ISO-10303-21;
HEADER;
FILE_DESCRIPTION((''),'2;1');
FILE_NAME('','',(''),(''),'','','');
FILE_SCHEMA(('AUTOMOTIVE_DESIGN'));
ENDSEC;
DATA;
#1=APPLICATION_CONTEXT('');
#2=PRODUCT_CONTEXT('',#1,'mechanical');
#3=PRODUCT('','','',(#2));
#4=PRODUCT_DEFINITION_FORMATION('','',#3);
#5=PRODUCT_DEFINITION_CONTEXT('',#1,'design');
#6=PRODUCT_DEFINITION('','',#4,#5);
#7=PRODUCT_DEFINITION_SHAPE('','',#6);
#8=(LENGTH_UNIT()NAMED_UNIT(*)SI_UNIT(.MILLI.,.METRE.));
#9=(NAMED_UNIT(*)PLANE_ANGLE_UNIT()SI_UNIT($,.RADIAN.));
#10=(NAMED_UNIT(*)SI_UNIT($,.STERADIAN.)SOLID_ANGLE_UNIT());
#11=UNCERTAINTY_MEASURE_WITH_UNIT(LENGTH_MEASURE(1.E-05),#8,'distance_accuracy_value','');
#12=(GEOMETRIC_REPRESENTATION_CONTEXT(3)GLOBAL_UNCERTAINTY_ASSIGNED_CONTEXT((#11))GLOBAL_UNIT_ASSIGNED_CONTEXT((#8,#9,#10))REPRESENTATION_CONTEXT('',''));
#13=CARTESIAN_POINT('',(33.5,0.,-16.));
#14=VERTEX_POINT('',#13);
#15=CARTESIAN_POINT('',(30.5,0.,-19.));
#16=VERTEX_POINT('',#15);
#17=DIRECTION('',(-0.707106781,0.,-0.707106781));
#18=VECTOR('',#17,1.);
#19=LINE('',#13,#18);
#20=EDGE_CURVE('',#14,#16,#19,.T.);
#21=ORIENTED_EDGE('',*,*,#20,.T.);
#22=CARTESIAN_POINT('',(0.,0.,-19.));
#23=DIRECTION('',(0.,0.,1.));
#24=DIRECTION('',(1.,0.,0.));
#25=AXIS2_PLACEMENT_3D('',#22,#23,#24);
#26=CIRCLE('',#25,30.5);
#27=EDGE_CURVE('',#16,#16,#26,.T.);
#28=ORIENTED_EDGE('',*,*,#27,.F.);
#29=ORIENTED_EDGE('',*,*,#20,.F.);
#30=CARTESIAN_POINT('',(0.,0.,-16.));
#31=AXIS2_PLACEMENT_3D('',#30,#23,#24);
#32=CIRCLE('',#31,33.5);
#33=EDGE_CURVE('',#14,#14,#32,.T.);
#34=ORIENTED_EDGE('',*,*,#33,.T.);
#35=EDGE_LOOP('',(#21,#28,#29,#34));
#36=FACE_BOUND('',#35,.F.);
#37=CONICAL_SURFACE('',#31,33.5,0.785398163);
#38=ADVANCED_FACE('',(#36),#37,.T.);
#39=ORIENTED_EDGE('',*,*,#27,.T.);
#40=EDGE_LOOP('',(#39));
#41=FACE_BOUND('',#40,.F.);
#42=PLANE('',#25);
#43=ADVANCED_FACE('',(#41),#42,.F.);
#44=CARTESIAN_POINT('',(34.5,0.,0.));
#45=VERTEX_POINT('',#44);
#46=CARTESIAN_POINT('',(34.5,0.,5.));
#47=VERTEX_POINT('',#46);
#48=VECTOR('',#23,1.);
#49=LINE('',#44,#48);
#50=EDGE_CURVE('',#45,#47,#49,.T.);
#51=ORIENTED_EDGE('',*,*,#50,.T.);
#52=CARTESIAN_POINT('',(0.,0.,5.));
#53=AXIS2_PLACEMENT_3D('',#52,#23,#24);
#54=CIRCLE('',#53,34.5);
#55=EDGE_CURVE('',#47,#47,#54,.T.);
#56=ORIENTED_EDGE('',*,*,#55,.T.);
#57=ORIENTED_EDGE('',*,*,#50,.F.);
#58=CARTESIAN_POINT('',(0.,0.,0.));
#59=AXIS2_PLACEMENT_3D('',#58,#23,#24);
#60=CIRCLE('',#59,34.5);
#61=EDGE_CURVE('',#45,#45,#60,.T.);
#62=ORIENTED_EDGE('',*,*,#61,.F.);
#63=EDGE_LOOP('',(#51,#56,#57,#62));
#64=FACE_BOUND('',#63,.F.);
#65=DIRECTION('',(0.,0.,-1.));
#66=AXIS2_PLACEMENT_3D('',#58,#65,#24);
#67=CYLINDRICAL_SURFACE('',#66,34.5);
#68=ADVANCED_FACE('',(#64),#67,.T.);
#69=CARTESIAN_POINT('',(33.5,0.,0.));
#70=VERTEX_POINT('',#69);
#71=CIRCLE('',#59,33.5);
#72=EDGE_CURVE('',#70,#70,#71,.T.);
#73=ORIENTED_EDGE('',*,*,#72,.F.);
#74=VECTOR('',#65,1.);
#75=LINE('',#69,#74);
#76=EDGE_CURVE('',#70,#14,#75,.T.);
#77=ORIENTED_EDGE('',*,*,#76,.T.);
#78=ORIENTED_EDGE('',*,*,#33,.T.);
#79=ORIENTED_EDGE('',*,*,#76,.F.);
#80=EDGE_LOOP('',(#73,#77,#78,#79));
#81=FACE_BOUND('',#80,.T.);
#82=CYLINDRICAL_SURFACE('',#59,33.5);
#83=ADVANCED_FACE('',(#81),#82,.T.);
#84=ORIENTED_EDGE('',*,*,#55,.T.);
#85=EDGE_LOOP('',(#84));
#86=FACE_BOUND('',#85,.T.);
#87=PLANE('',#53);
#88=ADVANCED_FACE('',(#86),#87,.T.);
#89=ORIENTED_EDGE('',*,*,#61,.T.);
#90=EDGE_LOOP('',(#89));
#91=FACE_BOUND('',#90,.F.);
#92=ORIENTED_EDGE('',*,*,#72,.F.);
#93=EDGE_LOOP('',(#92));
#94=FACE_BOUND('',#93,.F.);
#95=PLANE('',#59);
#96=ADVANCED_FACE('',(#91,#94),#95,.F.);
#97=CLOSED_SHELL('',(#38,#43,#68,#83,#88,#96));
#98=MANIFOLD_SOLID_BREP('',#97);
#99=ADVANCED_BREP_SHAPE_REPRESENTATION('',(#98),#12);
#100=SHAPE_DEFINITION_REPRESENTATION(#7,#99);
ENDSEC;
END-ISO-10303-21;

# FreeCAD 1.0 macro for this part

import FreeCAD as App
import Part
import Sketcher
from FreeCAD import Vector
Q = App.Units.Quantity


def edges_at(feature, points):
    """Names of the edges that pass closest to the given points."""
    edges = feature.Shape.Edges
    near = lambda p: min(range(len(edges)), key=lambda i: edges[i].distToShape(Part.Vertex(*p))[0])
    return sorted({f"Edge{near(p) + 1}" for p in points})

doc = App.newDocument("Part")
body = doc.addObject("PartDesign::Body", "Body")

# Sketch on XY plane
sketch1 = body.newObject("Sketcher::SketchObject", "Sketch")
sketch1.AttachmentSupport = (doc.getObject("XY_Plane"), [""])
sketch1.MapMode = "FlatFace"
sketch1.addGeometry(Part.Circle(Vector(0, 0, 0), Vector(0, 0, 1), 34), False)
sketch1.addConstraint([
    Sketcher.Constraint("Coincident", 0, 3, -1, 1),
    Sketcher.Constraint("Diameter", 0, Q("69 mm")),
])
pad1 = body.newObject("PartDesign::Pad", "Pad")
pad1.Profile = sketch1
pad1.Length = 5

# Sketch on XY plane
sketch2 = body.newObject("Sketcher::SketchObject", "Sketch001")
sketch2.AttachmentSupport = (doc.getObject("XY_Plane"), [""])
sketch2.MapMode = "FlatFace"
sketch2.addGeometry(Part.Circle(Vector(0, 0, 0), Vector(0, 0, 1), 34), False)
sketch2.addConstraint([
    Sketcher.Constraint("Coincident", 0, 3, -1, 1),
    Sketcher.Constraint("Diameter", 0, Q("67 mm")),
])
pad2 = body.newObject("PartDesign::Pad", "Pad001")
pad2.Profile = sketch2
pad2.Length = 19
pad2.Reversed = True
doc.recompute()

chamfer = body.newObject("PartDesign::Chamfer", "Chamfer")
chamfer.Base = (pad2, edges_at(pad2, [(-33.5, 0, -19)]))
chamfer.Size = 3

doc.recompute()
